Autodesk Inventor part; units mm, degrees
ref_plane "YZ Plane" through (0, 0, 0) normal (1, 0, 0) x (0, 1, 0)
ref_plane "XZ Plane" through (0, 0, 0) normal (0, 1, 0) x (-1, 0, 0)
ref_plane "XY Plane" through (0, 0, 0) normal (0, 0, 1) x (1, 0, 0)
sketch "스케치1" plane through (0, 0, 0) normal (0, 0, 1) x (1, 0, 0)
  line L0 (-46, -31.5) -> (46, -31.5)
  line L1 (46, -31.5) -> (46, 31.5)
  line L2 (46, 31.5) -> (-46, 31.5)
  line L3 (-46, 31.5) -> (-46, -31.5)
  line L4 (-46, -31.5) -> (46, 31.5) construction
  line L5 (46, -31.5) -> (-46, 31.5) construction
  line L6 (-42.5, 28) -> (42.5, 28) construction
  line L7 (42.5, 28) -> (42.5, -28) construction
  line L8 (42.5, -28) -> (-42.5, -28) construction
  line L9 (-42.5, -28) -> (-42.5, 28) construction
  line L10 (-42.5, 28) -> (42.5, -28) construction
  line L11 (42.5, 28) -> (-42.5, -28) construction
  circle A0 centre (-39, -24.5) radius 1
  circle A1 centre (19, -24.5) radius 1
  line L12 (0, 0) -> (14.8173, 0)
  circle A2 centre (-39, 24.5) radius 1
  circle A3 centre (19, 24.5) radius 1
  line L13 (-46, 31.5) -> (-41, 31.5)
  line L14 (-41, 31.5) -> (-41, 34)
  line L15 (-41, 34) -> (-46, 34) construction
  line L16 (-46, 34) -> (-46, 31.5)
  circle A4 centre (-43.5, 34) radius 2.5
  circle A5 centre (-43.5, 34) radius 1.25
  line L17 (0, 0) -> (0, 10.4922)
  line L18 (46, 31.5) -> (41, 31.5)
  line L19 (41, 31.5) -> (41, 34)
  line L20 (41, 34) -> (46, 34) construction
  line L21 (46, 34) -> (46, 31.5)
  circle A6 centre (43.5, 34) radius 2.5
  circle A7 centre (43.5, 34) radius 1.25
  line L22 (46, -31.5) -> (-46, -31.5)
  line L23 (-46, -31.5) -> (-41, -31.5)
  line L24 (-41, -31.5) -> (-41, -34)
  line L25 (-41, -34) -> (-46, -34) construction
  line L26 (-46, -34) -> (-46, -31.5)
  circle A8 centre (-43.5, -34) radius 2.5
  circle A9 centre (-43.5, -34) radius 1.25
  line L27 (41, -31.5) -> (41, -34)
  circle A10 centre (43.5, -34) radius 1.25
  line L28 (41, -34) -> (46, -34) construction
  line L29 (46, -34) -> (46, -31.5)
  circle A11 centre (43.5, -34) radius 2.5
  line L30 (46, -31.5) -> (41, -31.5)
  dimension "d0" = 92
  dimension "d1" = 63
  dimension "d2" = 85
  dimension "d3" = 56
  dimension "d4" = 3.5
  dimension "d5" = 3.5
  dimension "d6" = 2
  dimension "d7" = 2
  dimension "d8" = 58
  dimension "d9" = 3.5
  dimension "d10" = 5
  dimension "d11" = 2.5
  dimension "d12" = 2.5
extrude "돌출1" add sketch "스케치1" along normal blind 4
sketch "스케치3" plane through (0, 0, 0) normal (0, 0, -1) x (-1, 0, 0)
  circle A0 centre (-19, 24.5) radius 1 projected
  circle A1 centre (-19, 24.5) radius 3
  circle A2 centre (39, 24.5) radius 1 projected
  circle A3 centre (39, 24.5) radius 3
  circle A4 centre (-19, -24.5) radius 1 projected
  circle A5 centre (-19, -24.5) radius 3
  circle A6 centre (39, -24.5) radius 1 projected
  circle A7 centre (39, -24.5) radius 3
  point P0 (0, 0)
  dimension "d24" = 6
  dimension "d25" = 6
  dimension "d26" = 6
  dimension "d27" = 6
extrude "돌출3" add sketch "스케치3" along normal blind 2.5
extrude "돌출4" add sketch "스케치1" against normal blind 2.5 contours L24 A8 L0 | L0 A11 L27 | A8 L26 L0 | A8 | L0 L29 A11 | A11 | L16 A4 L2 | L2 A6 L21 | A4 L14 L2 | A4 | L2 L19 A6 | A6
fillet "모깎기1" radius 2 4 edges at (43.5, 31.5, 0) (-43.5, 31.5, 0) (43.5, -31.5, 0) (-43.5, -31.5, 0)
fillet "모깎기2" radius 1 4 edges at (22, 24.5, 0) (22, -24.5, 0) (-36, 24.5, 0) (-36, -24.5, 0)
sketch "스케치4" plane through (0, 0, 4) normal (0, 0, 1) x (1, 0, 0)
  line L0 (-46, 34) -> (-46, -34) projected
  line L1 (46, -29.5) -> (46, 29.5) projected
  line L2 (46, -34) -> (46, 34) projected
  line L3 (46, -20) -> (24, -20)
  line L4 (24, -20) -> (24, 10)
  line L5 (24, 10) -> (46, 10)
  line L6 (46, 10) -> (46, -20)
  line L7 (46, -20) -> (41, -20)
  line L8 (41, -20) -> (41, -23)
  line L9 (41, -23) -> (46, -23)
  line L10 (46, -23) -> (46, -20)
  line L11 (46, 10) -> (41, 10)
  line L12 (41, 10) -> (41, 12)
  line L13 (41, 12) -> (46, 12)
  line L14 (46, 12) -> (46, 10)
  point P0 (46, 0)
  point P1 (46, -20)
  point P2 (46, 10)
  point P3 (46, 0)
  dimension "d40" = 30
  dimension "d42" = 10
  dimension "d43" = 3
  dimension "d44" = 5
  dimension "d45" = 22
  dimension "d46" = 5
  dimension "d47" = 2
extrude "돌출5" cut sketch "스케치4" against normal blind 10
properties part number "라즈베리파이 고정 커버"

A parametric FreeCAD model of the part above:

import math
import FreeCAD as App
import Part
import Sketcher
from FreeCAD import Vector


def edges_at(feature, points):
    """Names of the edges that pass closest to the given points."""
    edges = feature.Shape.Edges
    near = lambda p: min(range(len(edges)), key=lambda i: edges[i].distToShape(Part.Vertex(*p))[0])
    return sorted({f"Edge{near(p) + 1}" for p in points})

doc = App.newDocument("Part")
body = doc.addObject("PartDesign::Body", "Body")

# Sketch on XY plane
sketch1 = doc.addObject("Sketcher::SketchObject", "Sketch")
body.addObject(sketch1)
sketch1.AttachmentSupport = (doc.XY_Plane, [""])
sketch1.MapMode = "FlatFace"
sketch1.addGeometry([
    Part.ArcOfCircle(Part.Circle(Vector(-43.5, -34, 0), Vector(0, 0, 1), 2.5), math.radians(180), math.radians(360)),  # 0
    Part.LineSegment(Vector(-41, -34, 0), Vector(-41, -31.5, 0)),  # 1
    Part.LineSegment(Vector(-41, -31.5, 0), Vector(41, -31.5, 0)),  # 2
    Part.LineSegment(Vector(41, -31.5, 0), Vector(41, -34, 0)),  # 3
    Part.ArcOfCircle(Part.Circle(Vector(43.5, -34, 0), Vector(0, 0, 1), 2.5), math.radians(180), math.radians(360)),  # 4
    Part.LineSegment(Vector(46, -34, 0), Vector(46, 34, 0)),  # 5
    Part.ArcOfCircle(Part.Circle(Vector(43.5, 34, 0), Vector(0, 0, 1), 2.5), math.radians(0), math.radians(180)),  # 6
    Part.LineSegment(Vector(41, 34, 0), Vector(41, 31.5, 0)),  # 7
    Part.LineSegment(Vector(41, 31.5, 0), Vector(-41, 31.5, 0)),  # 8
    Part.LineSegment(Vector(-41, 31.5, 0), Vector(-41, 34, 0)),  # 9
    Part.ArcOfCircle(Part.Circle(Vector(-43.5, 34, 0), Vector(0, 0, 1), 2.5), math.radians(0), math.radians(180)),  # 10
    Part.LineSegment(Vector(-46, 34, 0), Vector(-46, -34, 0)),  # 11
    Part.Circle(Vector(-39, -24.5, 0), Vector(0, 0, 1), 1),  # 12
    Part.Circle(Vector(19, -24.5, 0), Vector(0, 0, 1), 1),  # 13
    Part.Circle(Vector(-39, 24.5, 0), Vector(0, 0, 1), 1),  # 14
    Part.Circle(Vector(19, 24.5, 0), Vector(0, 0, 1), 1),  # 15
    Part.Circle(Vector(-43.5, -34, 0), Vector(0, 0, 1), 1.25),  # 16
    Part.Circle(Vector(-43.5, 34, 0), Vector(0, 0, 1), 1.25),  # 17
    Part.Circle(Vector(43.5, 34, 0), Vector(0, 0, 1), 1.25),  # 18
    Part.Circle(Vector(43.5, -34, 0), Vector(0, 0, 1), 1.25),  # 19
], False)
sketch1.addConstraint([
    Sketcher.Constraint("Tangent", 0, 2, 1, 1),
    Sketcher.Constraint("Coincident", 1, 2, 2, 1),
    Sketcher.Constraint("Coincident", 2, 2, 3, 1),
    Sketcher.Constraint("Tangent", 3, 2, 4, 1),
    Sketcher.Constraint("Tangent", 4, 2, 5, 1),
    Sketcher.Constraint("Tangent", 5, 2, 6, 1),
    Sketcher.Constraint("Tangent", 6, 2, 7, 1),
    Sketcher.Constraint("Coincident", 7, 2, 8, 1),
    Sketcher.Constraint("Coincident", 8, 2, 9, 1),
    Sketcher.Constraint("Tangent", 9, 2, 10, 1),
    Sketcher.Constraint("Tangent", 10, 2, 11, 1),
    Sketcher.Constraint("Tangent", 11, 2, 0, 1),
    Sketcher.Constraint("Vertical", 1),
    Sketcher.Constraint("Horizontal", 2),
    Sketcher.Constraint("Vertical", 3),
    Sketcher.Constraint("Vertical", 5),
    Sketcher.Constraint("Vertical", 7),
    Sketcher.Constraint("Horizontal", 8),
    Sketcher.Constraint("Vertical", 9),
    Sketcher.Constraint("Vertical", 11),
    Sketcher.Constraint("Coincident", 16, 3, 0, 3),
    Sketcher.Constraint("Coincident", 17, 3, 10, 3),
    Sketcher.Constraint("Coincident", 18, 3, 6, 3),
    Sketcher.Constraint("Coincident", 19, 3, 4, 3),
    Sketcher.Constraint("Equal", 0, 4),
    Sketcher.Constraint("Equal", 4, 6),
    Sketcher.Constraint("Equal", 6, 10),
    Sketcher.Constraint("Equal", 12, 13),
    Sketcher.Constraint("Equal", 13, 14),
    Sketcher.Constraint("Equal", 14, 15),
    Sketcher.Constraint("Equal", 16, 17),
    Sketcher.Constraint("Equal", 17, 18),
    Sketcher.Constraint("Equal", 18, 19),
    Sketcher.Constraint("Symmetric", 0, 3, 6, 3, -1, 1),
    Sketcher.Constraint("Symmetric", 12, 3, 14, 3, -1),
    Sketcher.Constraint("Symmetric", 13, 3, 15, 3, -1),
    Sketcher.Constraint("Horizontal", 0, 3, 4, 3),
    Sketcher.Constraint("Horizontal", 6, 3, 10, 3),
    Sketcher.Constraint("Horizontal", 12, 3, 13, 3),
    Sketcher.Constraint("Equal", 3, 7),
    Sketcher.Constraint("Diameter", 12, 2.0),
    Sketcher.Constraint("Diameter", 16, 2.5),
    Sketcher.Constraint("Radius", 0, 2.5),
    Sketcher.Constraint("DistanceY", 1, 1, 1, 2, 2.5),
    Sketcher.Constraint("DistanceX", 12, 3, 13, 3, 58.0),
    Sketcher.Constraint("DistanceX", 0, 2, 12, 3, 2.0),
    Sketcher.Constraint("DistanceY", 1, 2, 14, 3, 56.0),
    Sketcher.Constraint("DistanceX", 2, 1, 2, 2, 82.0),
    Sketcher.Constraint("DistanceY", 5, 1, 5, 2, 68.0),
])
pad1 = doc.addObject("PartDesign::Pad", "Pad")
body.addObject(pad1)
pad1.Profile = sketch1
pad1.Length = 4

# Sketch on XY plane
sketch2 = doc.addObject("Sketcher::SketchObject", "Sketch001")
body.addObject(sketch2)
sketch2.AttachmentSupport = (doc.XY_Plane, [""])
sketch2.MapMode = "FlatFace"
sketch2.addGeometry([
    Part.Circle(Vector(19, 24.5, 0), Vector(0, 0, 1), 3),  # 0
    Part.Circle(Vector(19, 24.5, 0), Vector(0, 0, 1), 1),  # 1
    Part.Circle(Vector(-39, 24.5, 0), Vector(0, 0, 1), 3),  # 2
    Part.Circle(Vector(-39, 24.5, 0), Vector(0, 0, 1), 1),  # 3
    Part.Circle(Vector(19, -24.5, 0), Vector(0, 0, 1), 3),  # 4
    Part.Circle(Vector(19, -24.5, 0), Vector(0, 0, 1), 1),  # 5
    Part.Circle(Vector(-39, -24.5, 0), Vector(0, 0, 1), 3),  # 6
    Part.Circle(Vector(-39, -24.5, 0), Vector(0, 0, 1), 1),  # 7
], False)
sketch2.addConstraint([
    Sketcher.Constraint("Coincident", 1, 3, 0, 3),
    Sketcher.Constraint("Coincident", 3, 3, 2, 3),
    Sketcher.Constraint("Coincident", 5, 3, 4, 3),
    Sketcher.Constraint("Coincident", 7, 3, 6, 3),
    Sketcher.Constraint("Equal", 0, 2),
    Sketcher.Constraint("Equal", 1, 3),
    Sketcher.Constraint("Equal", 2, 4),
    Sketcher.Constraint("Equal", 3, 5),
    Sketcher.Constraint("Equal", 4, 6),
    Sketcher.Constraint("Equal", 5, 7),
    Sketcher.Constraint("Symmetric", 0, 3, 4, 3, -1),
    Sketcher.Constraint("Symmetric", 2, 3, 6, 3, -1),
    Sketcher.Constraint("Horizontal", 1, 3, 2, 3),
    Sketcher.Constraint("Diameter", 0, 6.0),
    Sketcher.Constraint("Diameter", 1, 2.0),
    Sketcher.Constraint("DistanceX", -1, 1, 0, 3, 19.0),
    Sketcher.Constraint("DistanceX", 2, 3, -1, 1, 39.0),
    Sketcher.Constraint("DistanceY", 4, 3, 0, 3, 49.0),
])
pad2 = doc.addObject("PartDesign::Pad", "Pad001")
body.addObject(pad2)
pad2.Profile = sketch2
pad2.Length = 2.5
pad2.Reversed = True

# Sketch on XY plane
sketch3 = doc.addObject("Sketcher::SketchObject", "Sketch002")
body.addObject(sketch3)
sketch3.AttachmentSupport = (doc.XY_Plane, [""])
sketch3.MapMode = "FlatFace"
sketch3.addGeometry([
    Part.LineSegment(Vector(-41, -34, 0), Vector(-41, -31.5, 0)),  # 0
    Part.LineSegment(Vector(-41, -31.5, 0), Vector(-46, -31.5, 0)),  # 1
    Part.LineSegment(Vector(-46, -31.5, 0), Vector(-46, -34, 0)),  # 2
    Part.ArcOfCircle(Part.Circle(Vector(-43.5, -34, 0), Vector(0, 0, 1), 2.5), math.radians(180), math.radians(360)),  # 3
    Part.Circle(Vector(-43.5, -34, 0), Vector(0, 0, 1), 1.25),  # 4
    Part.LineSegment(Vector(41, -31.5, 0), Vector(41, -34, 0)),  # 5
    Part.ArcOfCircle(Part.Circle(Vector(43.5, -34, 0), Vector(0, 0, 1), 2.5), math.radians(180), math.radians(360)),  # 6
    Part.LineSegment(Vector(46, -34, 0), Vector(46, -31.5, 0)),  # 7
    Part.LineSegment(Vector(46, -31.5, 0), Vector(41, -31.5, 0)),  # 8
    Part.Circle(Vector(43.5, -34, 0), Vector(0, 0, 1), 1.25),  # 9
    Part.LineSegment(Vector(-46, 34, 0), Vector(-46, 31.5, 0)),  # 10
    Part.LineSegment(Vector(-46, 31.5, 0), Vector(-41, 31.5, 0)),  # 11
    Part.LineSegment(Vector(-41, 31.5, 0), Vector(-41, 34, 0)),  # 12
    Part.ArcOfCircle(Part.Circle(Vector(-43.5, 34, 0), Vector(0, 0, 1), 2.5), math.radians(0), math.radians(180)),  # 13
    Part.Circle(Vector(-43.5, 34, 0), Vector(0, 0, 1), 1.25),  # 14
    Part.LineSegment(Vector(46, 31.5, 0), Vector(46, 34, 0)),  # 15
    Part.ArcOfCircle(Part.Circle(Vector(43.5, 34, 0), Vector(0, 0, 1), 2.5), math.radians(0), math.radians(180)),  # 16
    Part.LineSegment(Vector(41, 34, 0), Vector(41, 31.5, 0)),  # 17
    Part.LineSegment(Vector(41, 31.5, 0), Vector(46, 31.5, 0)),  # 18
    Part.Circle(Vector(43.5, 34, 0), Vector(0, 0, 1), 1.25),  # 19
], False)
sketch3.addConstraint([
    Sketcher.Constraint("Coincident", 0, 2, 1, 1),
    Sketcher.Constraint("Coincident", 1, 2, 2, 1),
    Sketcher.Constraint("Tangent", 2, 2, 3, 1),
    Sketcher.Constraint("Tangent", 3, 2, 0, 1),
    Sketcher.Constraint("Tangent", 5, 2, 6, 1),
    Sketcher.Constraint("Tangent", 6, 2, 7, 1),
    Sketcher.Constraint("Coincident", 7, 2, 8, 1),
    Sketcher.Constraint("Coincident", 8, 2, 5, 1),
    Sketcher.Constraint("Coincident", 10, 2, 11, 1),
    Sketcher.Constraint("Coincident", 11, 2, 12, 1),
    Sketcher.Constraint("Tangent", 12, 2, 13, 1),
    Sketcher.Constraint("Tangent", 13, 2, 10, 1),
    Sketcher.Constraint("Tangent", 15, 2, 16, 1),
    Sketcher.Constraint("Tangent", 16, 2, 17, 1),
    Sketcher.Constraint("Coincident", 17, 2, 18, 1),
    Sketcher.Constraint("Coincident", 18, 2, 15, 1),
    Sketcher.Constraint("Vertical", 0),
    Sketcher.Constraint("Horizontal", 1),
    Sketcher.Constraint("Vertical", 2),
    Sketcher.Constraint("Vertical", 5),
    Sketcher.Constraint("Vertical", 7),
    Sketcher.Constraint("Horizontal", 8),
    Sketcher.Constraint("Vertical", 10),
    Sketcher.Constraint("Horizontal", 11),
    Sketcher.Constraint("Vertical", 12),
    Sketcher.Constraint("Vertical", 15),
    Sketcher.Constraint("Vertical", 17),
    Sketcher.Constraint("Horizontal", 18),
    Sketcher.Constraint("Coincident", 4, 3, 3, 3),
    Sketcher.Constraint("Coincident", 9, 3, 6, 3),
    Sketcher.Constraint("Coincident", 14, 3, 13, 3),
    Sketcher.Constraint("Coincident", 19, 3, 16, 3),
    Sketcher.Constraint("Equal", 3, 6),
    Sketcher.Constraint("Equal", 4, 9),
    Sketcher.Constraint("Equal", 6, 13),
    Sketcher.Constraint("Equal", 9, 14),
    Sketcher.Constraint("Equal", 13, 16),
    Sketcher.Constraint("Equal", 14, 19),
    Sketcher.Constraint("Symmetric", 6, 3, 13, 3, -1, 1),
    Sketcher.Constraint("Symmetric", 3, 3, 16, 3, -1, 1),
    Sketcher.Constraint("Symmetric", 3, 3, 6, 3, -2),
    Sketcher.Constraint("Horizontal", 1, 2, 7, 2),
    Sketcher.Constraint("Horizontal", 11, 2, 17, 2),
    Sketcher.Constraint("Equal", 7, 10),
    Sketcher.Constraint("Diameter", 4, 2.5),
    Sketcher.Constraint("Radius", 3, 2.5),
    Sketcher.Constraint("DistanceY", 0, 1, 0, 2, 2.5),
    Sketcher.Constraint("DistanceY", 1, 2, 10, 2, 63.0),
    Sketcher.Constraint("DistanceX", 0, 2, -1, 1, 41.0),
])
pad3 = doc.addObject("PartDesign::Pad", "Pad002")
body.addObject(pad3)
pad3.Profile = sketch3
pad3.Length = 2.5
pad3.Reversed = True
doc.recompute()

fillet = doc.addObject("PartDesign::Fillet", "Fillet")
body.addObject(fillet)
fillet.Base = (pad3, edges_at(pad3, [
    (43.5, 31.5, 0),
    (-43.5, 31.5, 0),
    (43.5, -31.5, 0),
    (-43.5, -31.5, 0),
]))
fillet.Radius = 2
doc.recompute()

fillet2 = doc.addObject("PartDesign::Fillet", "Fillet001")
body.addObject(fillet2)
fillet2.Base = (fillet, edges_at(fillet, [
    (22, 24.5, 0),
    (22, -24.5, 0),
    (-36, 24.5, 0),
    (-36, -24.5, 0),
]))
fillet2.Radius = 1

# Sketch on XY plane
sketch4 = doc.addObject("Sketcher::SketchObject", "Sketch003")
body.addObject(sketch4)
sketch4.AttachmentSupport = (doc.XY_Plane, [""])
sketch4.MapMode = "FlatFace"
sketch4.AttachmentOffset = App.Placement(Vector(0, 0, 4), App.Rotation())
sketch4.addGeometry([
    Part.LineSegment(Vector(41, -23, 0), Vector(46, -23, 0)),  # 0
    Part.LineSegment(Vector(46, -23, 0), Vector(46, 12, 0)),  # 1
    Part.LineSegment(Vector(46, 12, 0), Vector(41, 12, 0)),  # 2
    Part.LineSegment(Vector(41, 12, 0), Vector(41, 10, 0)),  # 3
    Part.LineSegment(Vector(41, 10, 0), Vector(24, 10, 0)),  # 4
    Part.LineSegment(Vector(24, 10, 0), Vector(24, -20, 0)),  # 5
    Part.LineSegment(Vector(24, -20, 0), Vector(41, -20, 0)),  # 6
    Part.LineSegment(Vector(41, -20, 0), Vector(41, -23, 0)),  # 7
], False)
sketch4.addConstraint([
    Sketcher.Constraint("Coincident", 0, 2, 1, 1),
    Sketcher.Constraint("Coincident", 1, 2, 2, 1),
    Sketcher.Constraint("Coincident", 2, 2, 3, 1),
    Sketcher.Constraint("Coincident", 3, 2, 4, 1),
    Sketcher.Constraint("Coincident", 4, 2, 5, 1),
    Sketcher.Constraint("Coincident", 5, 2, 6, 1),
    Sketcher.Constraint("Coincident", 6, 2, 7, 1),
    Sketcher.Constraint("Coincident", 7, 2, 0, 1),
    Sketcher.Constraint("Horizontal", 0),
    Sketcher.Constraint("Vertical", 1),
    Sketcher.Constraint("Horizontal", 2),
    Sketcher.Constraint("Vertical", 3),
    Sketcher.Constraint("Horizontal", 4),
    Sketcher.Constraint("Vertical", 5),
    Sketcher.Constraint("Horizontal", 6),
    Sketcher.Constraint("Vertical", 7),
    Sketcher.Constraint("Vertical", 3, 2, 6, 2),
    Sketcher.Constraint("DistanceX", 0, 1, 0, 2, 5.0),
    Sketcher.Constraint("DistanceY", 3, 2, 3, 1, 2.0),
    Sketcher.Constraint("DistanceY", 5, 2, 5, 1, 30.0),
    Sketcher.Constraint("DistanceY", 7, 2, 7, 1, 3.0),
    Sketcher.Constraint("DistanceY", -1, 1, 3, 2, 10.0),
    Sketcher.Constraint("DistanceX", 4, 2, 1, 2, 22.0),
    Sketcher.Constraint("DistanceX", -1, 1, 0, 2, 46.0),
])
pocket1 = doc.addObject("PartDesign::Pocket", "Pocket")
body.addObject(pocket1)
pocket1.Profile = sketch4
pocket1.Length = 10

doc.recompute()
